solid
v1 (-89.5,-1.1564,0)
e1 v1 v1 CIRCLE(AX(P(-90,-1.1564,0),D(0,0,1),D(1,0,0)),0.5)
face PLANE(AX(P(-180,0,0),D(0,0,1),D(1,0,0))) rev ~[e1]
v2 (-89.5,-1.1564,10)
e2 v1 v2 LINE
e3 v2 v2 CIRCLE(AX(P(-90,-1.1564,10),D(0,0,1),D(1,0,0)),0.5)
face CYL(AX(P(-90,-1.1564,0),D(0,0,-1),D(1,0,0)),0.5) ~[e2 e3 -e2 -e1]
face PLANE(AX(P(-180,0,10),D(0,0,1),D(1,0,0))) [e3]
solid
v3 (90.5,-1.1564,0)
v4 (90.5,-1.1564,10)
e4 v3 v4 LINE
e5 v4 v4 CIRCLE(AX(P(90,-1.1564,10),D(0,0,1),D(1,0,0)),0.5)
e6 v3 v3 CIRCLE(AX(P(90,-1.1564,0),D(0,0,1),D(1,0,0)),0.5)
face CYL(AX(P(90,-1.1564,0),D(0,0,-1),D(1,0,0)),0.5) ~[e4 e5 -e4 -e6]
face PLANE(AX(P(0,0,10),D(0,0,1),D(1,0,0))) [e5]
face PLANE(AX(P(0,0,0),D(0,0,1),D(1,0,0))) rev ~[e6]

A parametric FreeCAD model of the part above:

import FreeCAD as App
import Part
import Sketcher
from FreeCAD import Vector

doc = App.newDocument("Part")
body = doc.addObject("PartDesign::Body", "Body")
body.AllowCompound = True

# Sketch on XY plane
sketch1 = body.newObject("Sketcher::SketchObject", "Sketch")
sketch1.AttachmentSupport = (doc.getObject("XY_Plane"), [""])
sketch1.MapMode = "FlatFace"
sketch1.addGeometry(Part.Circle(Vector(90, -1.1564, 0), Vector(0, 0, 1), 0.5), False)
sketch1.addConstraint(Sketcher.Constraint("Diameter", 0, 1.0))
sketch1.addConstraint(Sketcher.Constraint("DistanceX", -1, 1, 0, 3, 90.0))
sketch1.addConstraint(Sketcher.Constraint("DistanceY", 0, 3, -1, 1, 1.1564))
pad1 = body.newObject("PartDesign::Pad", "Pad")
pad1.Profile = sketch1
pad1.Length = 10
doc.recompute()

linearpattern = body.newObject("PartDesign::LinearPattern", "LinearPattern")
linearpattern.Originals = [pad1]
linearpattern.Direction = (doc.getObject("X_Axis"), [""])
linearpattern.Mode = "offset"
linearpattern.Offset = 180
linearpattern.Occurrences = 2
linearpattern.Reversed = True
body.Tip = linearpattern

doc.recompute()
